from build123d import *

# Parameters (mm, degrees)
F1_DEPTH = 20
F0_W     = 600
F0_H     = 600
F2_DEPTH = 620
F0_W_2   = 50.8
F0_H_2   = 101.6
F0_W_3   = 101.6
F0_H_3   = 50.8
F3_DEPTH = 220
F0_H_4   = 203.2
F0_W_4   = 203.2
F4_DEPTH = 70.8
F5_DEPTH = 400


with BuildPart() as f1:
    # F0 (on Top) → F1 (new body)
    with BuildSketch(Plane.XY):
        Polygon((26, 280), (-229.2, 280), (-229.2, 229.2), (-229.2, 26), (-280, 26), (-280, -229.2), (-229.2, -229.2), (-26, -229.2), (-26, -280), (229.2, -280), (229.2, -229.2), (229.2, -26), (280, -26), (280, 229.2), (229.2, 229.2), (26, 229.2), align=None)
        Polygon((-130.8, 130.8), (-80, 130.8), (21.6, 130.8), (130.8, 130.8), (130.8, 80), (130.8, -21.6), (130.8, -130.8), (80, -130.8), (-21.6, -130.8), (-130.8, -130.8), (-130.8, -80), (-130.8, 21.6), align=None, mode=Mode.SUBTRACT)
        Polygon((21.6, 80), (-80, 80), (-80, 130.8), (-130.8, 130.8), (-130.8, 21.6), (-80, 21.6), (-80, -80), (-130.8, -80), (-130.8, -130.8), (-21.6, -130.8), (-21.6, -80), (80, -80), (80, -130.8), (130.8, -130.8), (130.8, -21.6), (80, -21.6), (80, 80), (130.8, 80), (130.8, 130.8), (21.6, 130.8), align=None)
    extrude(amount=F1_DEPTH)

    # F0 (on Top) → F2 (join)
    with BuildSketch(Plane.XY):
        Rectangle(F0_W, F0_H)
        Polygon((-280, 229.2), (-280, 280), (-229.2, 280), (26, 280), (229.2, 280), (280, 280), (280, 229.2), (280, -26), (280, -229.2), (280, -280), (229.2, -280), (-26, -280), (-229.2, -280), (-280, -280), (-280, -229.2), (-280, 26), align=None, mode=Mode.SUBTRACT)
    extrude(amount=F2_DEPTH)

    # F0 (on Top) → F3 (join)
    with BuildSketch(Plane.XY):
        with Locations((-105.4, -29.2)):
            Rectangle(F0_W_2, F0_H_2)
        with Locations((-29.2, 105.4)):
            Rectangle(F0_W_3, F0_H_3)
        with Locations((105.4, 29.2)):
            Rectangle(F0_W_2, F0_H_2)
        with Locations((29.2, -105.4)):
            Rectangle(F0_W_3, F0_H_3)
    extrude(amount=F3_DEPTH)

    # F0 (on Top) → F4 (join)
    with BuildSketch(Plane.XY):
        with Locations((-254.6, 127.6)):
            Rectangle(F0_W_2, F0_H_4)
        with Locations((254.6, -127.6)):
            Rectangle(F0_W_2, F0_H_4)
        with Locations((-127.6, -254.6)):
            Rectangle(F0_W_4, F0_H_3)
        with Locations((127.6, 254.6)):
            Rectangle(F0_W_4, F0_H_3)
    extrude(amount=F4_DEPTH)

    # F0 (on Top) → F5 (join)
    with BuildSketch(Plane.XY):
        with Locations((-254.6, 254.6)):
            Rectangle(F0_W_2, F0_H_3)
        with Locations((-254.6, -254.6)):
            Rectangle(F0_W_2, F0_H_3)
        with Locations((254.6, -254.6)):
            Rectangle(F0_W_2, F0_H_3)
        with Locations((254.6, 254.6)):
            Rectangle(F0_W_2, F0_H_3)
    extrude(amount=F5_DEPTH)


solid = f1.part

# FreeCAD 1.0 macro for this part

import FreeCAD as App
import Part
import Sketcher

V = App.Vector

doc = App.newDocument("Part")
params = doc.addObject("Spreadsheet::Sheet", "Params")
for row, (alias, value) in enumerate([
    ("sketch1_width", "254 mm"),
    ("sketch1_width2", "255.2 mm"),
    ("sketch1_width3", "50.8 mm"),
    ("sketch1_width4", "101.6 mm"),
    ("pad1_length", "20 mm"),
    ("sketch2_width", "600 mm"),
    ("sketch2_width2", "560 mm"),
    ("pad2_length", "620 mm"),
    ("sketch3_width", "50.8 mm"),
    ("sketch3_width2", "101.6 mm"),
    ("pad3_length", "220 mm"),
    ("sketch4_width", "50.8 mm"),
    ("sketch4_width2", "203.2 mm"),
    ("pad4_length", "70.8 mm"),
    ("sketch5_width", "50.8 mm"),
    ("pad5_length", "400 mm"),
], start=1):
    params.set(f"A{row}", alias)
    params.set(f"B{row}", "=" + value)
    params.setAlias(f"B{row}", alias)

body = doc.addObject("PartDesign::Body", "Body")

# Sketch on XY plane
sketch1 = body.newObject("Sketcher::SketchObject", "Sketch")
sketch1.AttachmentSupport = (doc.getObject("XY_Plane"), [""])
sketch1.MapMode = "FlatFace"
sketch1.addGeometry([
    Part.LineSegment(V(26, 280, 0), V(-229, 280, 0)),  # 0
    Part.LineSegment(V(-229, 280, 0), V(-229, 26, 0)),  # 1
    Part.LineSegment(V(-229, 26, 0), V(-280, 26, 0)),  # 2
    Part.LineSegment(V(-280, 26, 0), V(-280, -229, 0)),  # 3
    Part.LineSegment(V(-280, -229, 0), V(-26, -229, 0)),  # 4
    Part.LineSegment(V(-26, -229, 0), V(-26, -280, 0)),  # 5
    Part.LineSegment(V(-26, -280, 0), V(229, -280, 0)),  # 6
    Part.LineSegment(V(229, -280, 0), V(229, -26, 0)),  # 7
    Part.LineSegment(V(229, -26, 0), V(280, -26, 0)),  # 8
    Part.LineSegment(V(280, -26, 0), V(280, 229, 0)),  # 9
    Part.LineSegment(V(280, 229, 0), V(26, 229, 0)),  # 10
    Part.LineSegment(V(26, 229, 0), V(26, 280, 0)),  # 11
    Part.LineSegment(V(-131, -80, 0), V(-131, 22, 0)),  # 12
    Part.LineSegment(V(-131, 22, 0), V(-80, 22, 0)),  # 13
    Part.LineSegment(V(-80, 22, 0), V(-80, -80, 0)),  # 14
    Part.LineSegment(V(-80, -80, 0), V(-131, -80, 0)),  # 15
    Part.LineSegment(V(-80, 131, 0), V(22, 131, 0)),  # 16
    Part.LineSegment(V(22, 131, 0), V(22, 80, 0)),  # 17
    Part.LineSegment(V(22, 80, 0), V(-80, 80, 0)),  # 18
    Part.LineSegment(V(-80, 80, 0), V(-80, 131, 0)),  # 19
    Part.LineSegment(V(131, 80, 0), V(131, -22, 0)),  # 20
    Part.LineSegment(V(131, -22, 0), V(80, -22, 0)),  # 21
    Part.LineSegment(V(80, -22, 0), V(80, 80, 0)),  # 22
    Part.LineSegment(V(80, 80, 0), V(131, 80, 0)),  # 23
    Part.LineSegment(V(80, -131, 0), V(-22, -131, 0)),  # 24
    Part.LineSegment(V(-22, -131, 0), V(-22, -80, 0)),  # 25
    Part.LineSegment(V(-22, -80, 0), V(80, -80, 0)),  # 26
    Part.LineSegment(V(80, -80, 0), V(80, -131, 0)),  # 27
], False)
sketch1.addConstraint([
    Sketcher.Constraint("Coincident", 0, 2, 1, 1),
    Sketcher.Constraint("Coincident", 1, 2, 2, 1),
    Sketcher.Constraint("Coincident", 2, 2, 3, 1),
    Sketcher.Constraint("Coincident", 3, 2, 4, 1),
    Sketcher.Constraint("Coincident", 4, 2, 5, 1),
    Sketcher.Constraint("Coincident", 5, 2, 6, 1),
    Sketcher.Constraint("Coincident", 6, 2, 7, 1),
    Sketcher.Constraint("Coincident", 7, 2, 8, 1),
    Sketcher.Constraint("Coincident", 8, 2, 9, 1),
    Sketcher.Constraint("Coincident", 9, 2, 10, 1),
    Sketcher.Constraint("Coincident", 10, 2, 11, 1),
    Sketcher.Constraint("Coincident", 11, 2, 0, 1),
    Sketcher.Constraint("Coincident", 12, 2, 13, 1),
    Sketcher.Constraint("Coincident", 13, 2, 14, 1),
    Sketcher.Constraint("Coincident", 14, 2, 15, 1),
    Sketcher.Constraint("Coincident", 15, 2, 12, 1),
    Sketcher.Constraint("Coincident", 16, 2, 17, 1),
    Sketcher.Constraint("Coincident", 17, 2, 18, 1),
    Sketcher.Constraint("Coincident", 18, 2, 19, 1),
    Sketcher.Constraint("Coincident", 19, 2, 16, 1),
    Sketcher.Constraint("Coincident", 20, 2, 21, 1),
    Sketcher.Constraint("Coincident", 21, 2, 22, 1),
    Sketcher.Constraint("Coincident", 22, 2, 23, 1),
    Sketcher.Constraint("Coincident", 23, 2, 20, 1),
    Sketcher.Constraint("Coincident", 24, 2, 25, 1),
    Sketcher.Constraint("Coincident", 25, 2, 26, 1),
    Sketcher.Constraint("Coincident", 26, 2, 27, 1),
    Sketcher.Constraint("Coincident", 27, 2, 24, 1),
    Sketcher.Constraint("Horizontal", 0),
    Sketcher.Constraint("Vertical", 1),
    Sketcher.Constraint("Horizontal", 2),
    Sketcher.Constraint("Vertical", 3),
    Sketcher.Constraint("Horizontal", 4),
    Sketcher.Constraint("Vertical", 5),
    Sketcher.Constraint("Horizontal", 6),
    Sketcher.Constraint("Vertical", 7),
    Sketcher.Constraint("Horizontal", 8),
    Sketcher.Constraint("Vertical", 9),
    Sketcher.Constraint("Horizontal", 10),
    Sketcher.Constraint("Vertical", 11),
    Sketcher.Constraint("Vertical", 12),
    Sketcher.Constraint("Horizontal", 13),
    Sketcher.Constraint("Vertical", 14),
    Sketcher.Constraint("Horizontal", 15),
    Sketcher.Constraint("Horizontal", 16),
    Sketcher.Constraint("Vertical", 17),
    Sketcher.Constraint("Horizontal", 18),
    Sketcher.Constraint("Vertical", 19),
    Sketcher.Constraint("Vertical", 20),
    Sketcher.Constraint("Horizontal", 21),
    Sketcher.Constraint("Vertical", 22),
    Sketcher.Constraint("Horizontal", 23),
    Sketcher.Constraint("Horizontal", 24),
    Sketcher.Constraint("Vertical", 25),
    Sketcher.Constraint("Horizontal", 26),
    Sketcher.Constraint("Vertical", 27),
    Sketcher.Constraint("Symmetric", 0, 2, 6, 2, -1, 1),
    Sketcher.Constraint("Symmetric", 2, 2, 8, 2, -1, 1),
    Sketcher.Constraint("Symmetric", 4, 2, 10, 2, -1, 1),
    Sketcher.Constraint("Symmetric", 12, 2, 20, 2, -1, 1),
    Sketcher.Constraint("Symmetric", 14, 2, 22, 2, -1, 1),
    Sketcher.Constraint("Symmetric", 16, 2, 24, 2, -1, 1),
    Sketcher.Constraint("Symmetric", 18, 2, 26, 2, -1, 1),
    Sketcher.Constraint("Symmetric", 18, 2, 22, 2, -2),
    Sketcher.Constraint("Equal", 8, 13),
    Sketcher.Constraint("Equal", 10, 1),
    Sketcher.Constraint("Equal", 6, 3),
    Sketcher.Constraint("Equal", 23, 5),
    Sketcher.Constraint("Equal", 26, 12),
    Sketcher.Constraint("Equal", 11, 17),
    Sketcher.Constraint("DistanceX", 4, 1, 4, 2, 254.0),
    Sketcher.Constraint("DistanceX", 0, 2, 0, 1, 255.2),
    Sketcher.Constraint("DistanceX", 2, 2, 2, 1, 50.8),
    Sketcher.Constraint("DistanceX", 16, 1, 16, 2, 101.6),
    Sketcher.Constraint("DistanceX", 13, 2, -1, 1, 80.0),
    Sketcher.Constraint("DistanceY", 14, 2, -1, 1, 80.0),
])
sketch1.setExpression("Constraints[70]", "Params.sketch1_width")
sketch1.setExpression("Constraints[71]", "Params.sketch1_width2")
sketch1.setExpression("Constraints[72]", "Params.sketch1_width3")
sketch1.setExpression("Constraints[73]", "Params.sketch1_width4")
pad1 = body.newObject("PartDesign::Pad", "Pad")
pad1.Profile = sketch1
pad1.setExpression("Length", "Params.pad1_length")

# Sketch on XY plane
sketch2 = body.newObject("Sketcher::SketchObject", "Sketch001")
sketch2.AttachmentSupport = (doc.getObject("XY_Plane"), [""])
sketch2.MapMode = "FlatFace"
sketch2.addGeometry([
    Part.LineSegment(V(-300, 300, 0), V(-300, -300, 0)),  # 0
    Part.LineSegment(V(-300, -300, 0), V(300, -300, 0)),  # 1
    Part.LineSegment(V(300, -300, 0), V(300, 300, 0)),  # 2
    Part.LineSegment(V(300, 300, 0), V(-300, 300, 0)),  # 3
    Part.LineSegment(V(-280, -280, 0), V(-280, 280, 0)),  # 4
    Part.LineSegment(V(-280, 280, 0), V(280, 280, 0)),  # 5
    Part.LineSegment(V(280, 280, 0), V(280, -280, 0)),  # 6
    Part.LineSegment(V(280, -280, 0), V(-280, -280, 0)),  # 7
], False)
sketch2.addConstraint([
    Sketcher.Constraint("Coincident", 0, 2, 1, 1),
    Sketcher.Constraint("Coincident", 1, 2, 2, 1),
    Sketcher.Constraint("Coincident", 2, 2, 3, 1),
    Sketcher.Constraint("Coincident", 3, 2, 0, 1),
    Sketcher.Constraint("Coincident", 4, 2, 5, 1),
    Sketcher.Constraint("Coincident", 5, 2, 6, 1),
    Sketcher.Constraint("Coincident", 6, 2, 7, 1),
    Sketcher.Constraint("Coincident", 7, 2, 4, 1),
    Sketcher.Constraint("Vertical", 0),
    Sketcher.Constraint("Horizontal", 1),
    Sketcher.Constraint("Vertical", 2),
    Sketcher.Constraint("Horizontal", 3),
    Sketcher.Constraint("Vertical", 4),
    Sketcher.Constraint("Horizontal", 5),
    Sketcher.Constraint("Vertical", 6),
    Sketcher.Constraint("Horizontal", 7),
    Sketcher.Constraint("Symmetric", 0, 2, 2, 2, -1, 1),
    Sketcher.Constraint("Symmetric", 4, 2, 6, 2, -1, 1),
    Sketcher.Constraint("Equal", 3, 0),
    Sketcher.Constraint("Equal", 7, 4),
    Sketcher.Constraint("DistanceX", 1, 1, 1, 2, 600.0),
    Sketcher.Constraint("DistanceX", 5, 1, 5, 2, 560.0),
])
sketch2.setExpression("Constraints[20]", "Params.sketch2_width")
sketch2.setExpression("Constraints[21]", "Params.sketch2_width2")
pad2 = body.newObject("PartDesign::Pad", "Pad001")
pad2.Profile = sketch2
pad2.setExpression("Length", "Params.pad2_length")

# Sketch on XY plane
sketch3 = body.newObject("Sketcher::SketchObject", "Sketch002")
sketch3.AttachmentSupport = (doc.getObject("XY_Plane"), [""])
sketch3.MapMode = "FlatFace"
sketch3.addGeometry([
    Part.LineSegment(V(-131, 22, 0), V(-131, -80, 0)),  # 0
    Part.LineSegment(V(-131, -80, 0), V(-80, -80, 0)),  # 1
    Part.LineSegment(V(-80, -80, 0), V(-80, 22, 0)),  # 2
    Part.LineSegment(V(-80, 22, 0), V(-131, 22, 0)),  # 3
    Part.LineSegment(V(-80, 131, 0), V(-80, 80, 0)),  # 4
    Part.LineSegment(V(-80, 80, 0), V(22, 80, 0)),  # 5
    Part.LineSegment(V(22, 80, 0), V(22, 131, 0)),  # 6
    Part.LineSegment(V(22, 131, 0), V(-80, 131, 0)),  # 7
    Part.LineSegment(V(80, 80, 0), V(80, -22, 0)),  # 8
    Part.LineSegment(V(80, -22, 0), V(131, -22, 0)),  # 9
    Part.LineSegment(V(131, -22, 0), V(131, 80, 0)),  # 10
    Part.LineSegment(V(131, 80, 0), V(80, 80, 0)),  # 11
    Part.LineSegment(V(-22, -80, 0), V(-22, -131, 0)),  # 12
    Part.LineSegment(V(-22, -131, 0), V(80, -131, 0)),  # 13
    Part.LineSegment(V(80, -131, 0), V(80, -80, 0)),  # 14
    Part.LineSegment(V(80, -80, 0), V(-22, -80, 0)),  # 15
], False)
sketch3.addConstraint([
    Sketcher.Constraint("Coincident", 0, 2, 1, 1),
    Sketcher.Constraint("Coincident", 1, 2, 2, 1),
    Sketcher.Constraint("Coincident", 2, 2, 3, 1),
    Sketcher.Constraint("Coincident", 3, 2, 0, 1),
    Sketcher.Constraint("Coincident", 4, 2, 5, 1),
    Sketcher.Constraint("Coincident", 5, 2, 6, 1),
    Sketcher.Constraint("Coincident", 6, 2, 7, 1),
    Sketcher.Constraint("Coincident", 7, 2, 4, 1),
    Sketcher.Constraint("Coincident", 8, 2, 9, 1),
    Sketcher.Constraint("Coincident", 9, 2, 10, 1),
    Sketcher.Constraint("Coincident", 10, 2, 11, 1),
    Sketcher.Constraint("Coincident", 11, 2, 8, 1),
    Sketcher.Constraint("Coincident", 12, 2, 13, 1),
    Sketcher.Constraint("Coincident", 13, 2, 14, 1),
    Sketcher.Constraint("Coincident", 14, 2, 15, 1),
    Sketcher.Constraint("Coincident", 15, 2, 12, 1),
    Sketcher.Constraint("Vertical", 0),
    Sketcher.Constraint("Horizontal", 1),
    Sketcher.Constraint("Vertical", 2),
    Sketcher.Constraint("Horizontal", 3),
    Sketcher.Constraint("Vertical", 4),
    Sketcher.Constraint("Horizontal", 5),
    Sketcher.Constraint("Vertical", 6),
    Sketcher.Constraint("Horizontal", 7),
    Sketcher.Constraint("Vertical", 8),
    Sketcher.Constraint("Horizontal", 9),
    Sketcher.Constraint("Vertical", 10),
    Sketcher.Constraint("Horizontal", 11),
    Sketcher.Constraint("Vertical", 12),
    Sketcher.Constraint("Horizontal", 13),
    Sketcher.Constraint("Vertical", 14),
    Sketcher.Constraint("Horizontal", 15),
    Sketcher.Constraint("Symmetric", 2, 2, 8, 2, -1, 1),
    Sketcher.Constraint("Symmetric", 0, 2, 10, 2, -1, 1),
    Sketcher.Constraint("Symmetric", 6, 2, 12, 2, -1, 1),
    Sketcher.Constraint("Symmetric", 4, 2, 14, 2, -1, 1),
    Sketcher.Constraint("Symmetric", 4, 2, 11, 2, -2),
    Sketcher.Constraint("Equal", 15, 0),
    Sketcher.Constraint("Equal", 11, 4),
    Sketcher.Constraint("DistanceX", 1, 1, 1, 2, 50.8),
    Sketcher.Constraint("DistanceX", 5, 1, 5, 2, 101.6),
    Sketcher.Constraint("DistanceY", 0, 2, -1, 1, 80.0),
    Sketcher.Constraint("DistanceX", 1, 2, -1, 1, 80.0),
])
sketch3.setExpression("Constraints[39]", "Params.sketch3_width")
sketch3.setExpression("Constraints[40]", "Params.sketch3_width2")
pad3 = body.newObject("PartDesign::Pad", "Pad002")
pad3.Profile = sketch3
pad3.setExpression("Length", "Params.pad3_length")

# Sketch on XY plane
sketch4 = body.newObject("Sketcher::SketchObject", "Sketch003")
sketch4.AttachmentSupport = (doc.getObject("XY_Plane"), [""])
sketch4.MapMode = "FlatFace"
sketch4.addGeometry([
    Part.LineSegment(V(-280, 229, 0), V(-280, 26, 0)),  # 0
    Part.LineSegment(V(-280, 26, 0), V(-229, 26, 0)),  # 1
    Part.LineSegment(V(-229, 26, 0), V(-229, 229, 0)),  # 2
    Part.LineSegment(V(-229, 229, 0), V(-280, 229, 0)),  # 3
    Part.LineSegment(V(229, -26, 0), V(229, -229, 0)),  # 4
    Part.LineSegment(V(229, -229, 0), V(280, -229, 0)),  # 5
    Part.LineSegment(V(280, -229, 0), V(280, -26, 0)),  # 6
    Part.LineSegment(V(280, -26, 0), V(229, -26, 0)),  # 7
    Part.LineSegment(V(-229, -229, 0), V(-229, -280, 0)),  # 8
    Part.LineSegment(V(-229, -280, 0), V(-26, -280, 0)),  # 9
    Part.LineSegment(V(-26, -280, 0), V(-26, -229, 0)),  # 10
    Part.LineSegment(V(-26, -229, 0), V(-229, -229, 0)),  # 11
    Part.LineSegment(V(26, 280, 0), V(26, 229, 0)),  # 12
    Part.LineSegment(V(26, 229, 0), V(229, 229, 0)),  # 13
    Part.LineSegment(V(229, 229, 0), V(229, 280, 0)),  # 14
    Part.LineSegment(V(229, 280, 0), V(26, 280, 0)),  # 15
], False)
sketch4.addConstraint([
    Sketcher.Constraint("Coincident", 0, 2, 1, 1),
    Sketcher.Constraint("Coincident", 1, 2, 2, 1),
    Sketcher.Constraint("Coincident", 2, 2, 3, 1),
    Sketcher.Constraint("Coincident", 3, 2, 0, 1),
    Sketcher.Constraint("Coincident", 4, 2, 5, 1),
    Sketcher.Constraint("Coincident", 5, 2, 6, 1),
    Sketcher.Constraint("Coincident", 6, 2, 7, 1),
    Sketcher.Constraint("Coincident", 7, 2, 4, 1),
    Sketcher.Constraint("Coincident", 8, 2, 9, 1),
    Sketcher.Constraint("Coincident", 9, 2, 10, 1),
    Sketcher.Constraint("Coincident", 10, 2, 11, 1),
    Sketcher.Constraint("Coincident", 11, 2, 8, 1),
    Sketcher.Constraint("Coincident", 12, 2, 13, 1),
    Sketcher.Constraint("Coincident", 13, 2, 14, 1),
    Sketcher.Constraint("Coincident", 14, 2, 15, 1),
    Sketcher.Constraint("Coincident", 15, 2, 12, 1),
    Sketcher.Constraint("Vertical", 0),
    Sketcher.Constraint("Horizontal", 1),
    Sketcher.Constraint("Vertical", 2),
    Sketcher.Constraint("Horizontal", 3),
    Sketcher.Constraint("Vertical", 4),
    Sketcher.Constraint("Horizontal", 5),
    Sketcher.Constraint("Vertical", 6),
    Sketcher.Constraint("Horizontal", 7),
    Sketcher.Constraint("Vertical", 8),
    Sketcher.Constraint("Horizontal", 9),
    Sketcher.Constraint("Vertical", 10),
    Sketcher.Constraint("Horizontal", 11),
    Sketcher.Constraint("Vertical", 12),
    Sketcher.Constraint("Horizontal", 13),
    Sketcher.Constraint("Vertical", 14),
    Sketcher.Constraint("Horizontal", 15),
    Sketcher.Constraint("Symmetric", 2, 2, 4, 2, -1, 1),
    Sketcher.Constraint("Symmetric", 0, 2, 6, 2, -1, 1),
    Sketcher.Constraint("Symmetric", 10, 2, 12, 2, -1, 1),
    Sketcher.Constraint("Symmetric", 8, 2, 14, 2, -1, 1),
    Sketcher.Constraint("Symmetric", 4, 2, 11, 2, -2),
    Sketcher.Constraint("Equal", 15, 0),
    Sketcher.Constraint("Equal", 7, 8),
    Sketcher.Constraint("DistanceX", 1, 1, 1, 2, 50.8),
    Sketcher.Constraint("DistanceX", 9, 1, 9, 2, 203.2),
    Sketcher.Constraint("DistanceX", 0, 2, -1, 1, 280.0),
    Sketcher.Constraint("DistanceY", -1, 1, 0, 2, 26.0),
])
sketch4.setExpression("Constraints[39]", "Params.sketch4_width")
sketch4.setExpression("Constraints[40]", "Params.sketch4_width2")
pad4 = body.newObject("PartDesign::Pad", "Pad003")
pad4.Profile = sketch4
pad4.setExpression("Length", "Params.pad4_length")

# Sketch on XY plane
sketch5 = body.newObject("Sketcher::SketchObject", "Sketch004")
sketch5.AttachmentSupport = (doc.getObject("XY_Plane"), [""])
sketch5.MapMode = "FlatFace"
sketch5.addGeometry([
    Part.LineSegment(V(-280, 280, 0), V(-280, 229, 0)),  # 0
    Part.LineSegment(V(-280, 229, 0), V(-229, 229, 0)),  # 1
    Part.LineSegment(V(-229, 229, 0), V(-229, 280, 0)),  # 2
    Part.LineSegment(V(-229, 280, 0), V(-280, 280, 0)),  # 3
    Part.LineSegment(V(-280, -229, 0), V(-280, -280, 0)),  # 4
    Part.LineSegment(V(-280, -280, 0), V(-229, -280, 0)),  # 5
    Part.LineSegment(V(-229, -280, 0), V(-229, -229, 0)),  # 6
    Part.LineSegment(V(-229, -229, 0), V(-280, -229, 0)),  # 7
    Part.LineSegment(V(229, -229, 0), V(229, -280, 0)),  # 8
    Part.LineSegment(V(229, -280, 0), V(280, -280, 0)),  # 9
    Part.LineSegment(V(280, -280, 0), V(280, -229, 0)),  # 10
    Part.LineSegment(V(280, -229, 0), V(229, -229, 0)),  # 11
    Part.LineSegment(V(229, 280, 0), V(229, 229, 0)),  # 12
    Part.LineSegment(V(229, 229, 0), V(280, 229, 0)),  # 13
    Part.LineSegment(V(280, 229, 0), V(280, 280, 0)),  # 14
    Part.LineSegment(V(280, 280, 0), V(229, 280, 0)),  # 15
], False)
sketch5.addConstraint([
    Sketcher.Constraint("Coincident", 0, 2, 1, 1),
    Sketcher.Constraint("Coincident", 1, 2, 2, 1),
    Sketcher.Constraint("Coincident", 2, 2, 3, 1),
    Sketcher.Constraint("Coincident", 3, 2, 0, 1),
    Sketcher.Constraint("Coincident", 4, 2, 5, 1),
    Sketcher.Constraint("Coincident", 5, 2, 6, 1),
    Sketcher.Constraint("Coincident", 6, 2, 7, 1),
    Sketcher.Constraint("Coincident", 7, 2, 4, 1),
    Sketcher.Constraint("Coincident", 8, 2, 9, 1),
    Sketcher.Constraint("Coincident", 9, 2, 10, 1),
    Sketcher.Constraint("Coincident", 10, 2, 11, 1),
    Sketcher.Constraint("Coincident", 11, 2, 8, 1),
    Sketcher.Constraint("Coincident", 12, 2, 13, 1),
    Sketcher.Constraint("Coincident", 13, 2, 14, 1),
    Sketcher.Constraint("Coincident", 14, 2, 15, 1),
    Sketcher.Constraint("Coincident", 15, 2, 12, 1),
    Sketcher.Constraint("Vertical", 0),
    Sketcher.Constraint("Horizontal", 1),
    Sketcher.Constraint("Vertical", 2),
    Sketcher.Constraint("Horizontal", 3),
    Sketcher.Constraint("Vertical", 4),
    Sketcher.Constraint("Horizontal", 5),
    Sketcher.Constraint("Vertical", 6),
    Sketcher.Constraint("Horizontal", 7),
    Sketcher.Constraint("Vertical", 8),
    Sketcher.Constraint("Horizontal", 9),
    Sketcher.Constraint("Vertical", 10),
    Sketcher.Constraint("Horizontal", 11),
    Sketcher.Constraint("Vertical", 12),
    Sketcher.Constraint("Horizontal", 13),
    Sketcher.Constraint("Vertical", 14),
    Sketcher.Constraint("Horizontal", 15),
    Sketcher.Constraint("Symmetric", 2, 2, 8, 2, -1, 1),
    Sketcher.Constraint("Symmetric", 0, 2, 10, 2, -1, 1),
    Sketcher.Constraint("Symmetric", 6, 2, 12, 2, -1, 1),
    Sketcher.Constraint("Symmetric", 4, 2, 14, 2, -1, 1),
    Sketcher.Constraint("Symmetric", 5, 2, 8, 2, -2),
    Sketcher.Constraint("Symmetric", 7, 2, 10, 2, -2),
    Sketcher.Constraint("Equal", 15, 0),
    Sketcher.Constraint("DistanceX", 1, 1, 1, 2, 50.8),
    Sketcher.Constraint("DistanceX", 0, 2, -1, 1, 280.0),
    Sketcher.Constraint("DistanceY", -1, 1, 2, 2, 280.0),
])
sketch5.setExpression("Constraints[39]", "Params.sketch5_width")
pad5 = body.newObject("PartDesign::Pad", "Pad004")
pad5.Profile = sketch5
pad5.setExpression("Length", "Params.pad5_length")

doc.recompute()
